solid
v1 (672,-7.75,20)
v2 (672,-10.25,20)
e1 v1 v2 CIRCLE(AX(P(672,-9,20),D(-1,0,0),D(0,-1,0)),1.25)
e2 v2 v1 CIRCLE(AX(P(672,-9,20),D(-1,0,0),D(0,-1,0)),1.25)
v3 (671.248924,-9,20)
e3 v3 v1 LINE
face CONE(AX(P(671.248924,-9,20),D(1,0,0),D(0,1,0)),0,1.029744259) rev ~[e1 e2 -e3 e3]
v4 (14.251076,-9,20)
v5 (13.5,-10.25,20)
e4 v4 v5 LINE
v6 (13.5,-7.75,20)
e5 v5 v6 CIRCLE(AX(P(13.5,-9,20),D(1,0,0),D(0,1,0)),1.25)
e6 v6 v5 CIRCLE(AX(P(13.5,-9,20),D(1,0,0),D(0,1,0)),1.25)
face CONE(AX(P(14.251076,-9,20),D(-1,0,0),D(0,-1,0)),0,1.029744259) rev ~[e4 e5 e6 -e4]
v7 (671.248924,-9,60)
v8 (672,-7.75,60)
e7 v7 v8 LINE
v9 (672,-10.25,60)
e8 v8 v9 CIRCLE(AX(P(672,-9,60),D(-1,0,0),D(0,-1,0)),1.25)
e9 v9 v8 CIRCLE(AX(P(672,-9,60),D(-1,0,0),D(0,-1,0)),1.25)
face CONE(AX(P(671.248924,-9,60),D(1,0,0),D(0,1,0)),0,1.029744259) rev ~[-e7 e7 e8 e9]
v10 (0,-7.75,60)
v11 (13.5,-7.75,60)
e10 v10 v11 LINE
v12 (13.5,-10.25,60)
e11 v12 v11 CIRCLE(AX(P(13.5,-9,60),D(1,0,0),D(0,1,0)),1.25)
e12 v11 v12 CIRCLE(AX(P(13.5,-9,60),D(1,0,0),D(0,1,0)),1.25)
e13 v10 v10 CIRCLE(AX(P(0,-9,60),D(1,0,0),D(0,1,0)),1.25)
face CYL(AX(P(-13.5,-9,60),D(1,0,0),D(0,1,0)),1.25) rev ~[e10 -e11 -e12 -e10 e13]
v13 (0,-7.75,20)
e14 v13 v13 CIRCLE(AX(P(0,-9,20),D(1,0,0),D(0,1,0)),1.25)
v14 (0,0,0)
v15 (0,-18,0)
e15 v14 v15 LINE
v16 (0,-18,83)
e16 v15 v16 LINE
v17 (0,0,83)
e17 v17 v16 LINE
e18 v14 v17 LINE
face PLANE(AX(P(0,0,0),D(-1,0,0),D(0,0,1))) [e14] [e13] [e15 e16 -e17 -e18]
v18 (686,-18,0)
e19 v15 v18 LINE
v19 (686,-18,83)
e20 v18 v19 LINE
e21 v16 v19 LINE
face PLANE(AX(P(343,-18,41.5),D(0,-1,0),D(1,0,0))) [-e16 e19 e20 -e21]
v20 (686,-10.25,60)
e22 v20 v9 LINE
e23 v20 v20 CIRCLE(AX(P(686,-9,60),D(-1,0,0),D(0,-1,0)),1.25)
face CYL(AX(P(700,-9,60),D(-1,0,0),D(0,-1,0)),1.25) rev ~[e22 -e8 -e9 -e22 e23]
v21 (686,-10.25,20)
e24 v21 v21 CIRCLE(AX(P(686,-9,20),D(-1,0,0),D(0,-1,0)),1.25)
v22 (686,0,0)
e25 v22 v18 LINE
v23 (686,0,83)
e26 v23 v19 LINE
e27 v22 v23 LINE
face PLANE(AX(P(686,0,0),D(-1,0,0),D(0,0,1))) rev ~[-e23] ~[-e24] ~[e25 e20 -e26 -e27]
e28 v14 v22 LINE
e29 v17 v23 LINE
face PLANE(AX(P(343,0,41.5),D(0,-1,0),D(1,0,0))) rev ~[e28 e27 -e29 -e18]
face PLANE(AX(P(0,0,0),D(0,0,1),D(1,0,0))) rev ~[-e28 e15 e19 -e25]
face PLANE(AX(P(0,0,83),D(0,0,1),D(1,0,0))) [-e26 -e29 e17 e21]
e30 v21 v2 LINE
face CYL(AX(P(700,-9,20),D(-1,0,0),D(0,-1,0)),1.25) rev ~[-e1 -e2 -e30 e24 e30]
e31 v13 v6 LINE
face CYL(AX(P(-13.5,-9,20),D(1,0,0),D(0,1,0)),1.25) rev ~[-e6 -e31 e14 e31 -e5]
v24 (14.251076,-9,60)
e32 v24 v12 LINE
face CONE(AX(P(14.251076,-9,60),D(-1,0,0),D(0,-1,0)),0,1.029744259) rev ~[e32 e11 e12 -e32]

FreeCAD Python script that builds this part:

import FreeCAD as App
import Part
import Sketcher
from FreeCAD import Vector


def add_polygon(sketch, points):
    """Adds a closed chain of lines whose ends are joined by coincident constraints."""
    first, n = sketch.GeometryCount, len(points)
    for a, b in zip(points, points[1:] + points[:1]):
        sketch.addGeometry(Part.LineSegment(App.Vector(*a, 0), App.Vector(*b, 0)), False)
    for i in range(n):
        sketch.addConstraint(Sketcher.Constraint("Coincident", first + i, 2, first + (i + 1) % n, 1))

doc = App.newDocument("Part")
body = doc.addObject("PartDesign::Body", "Body")

# Sketch on XZ plane
sketch1 = body.newObject("Sketcher::SketchObject", "Sketch")
sketch1.AttachmentSupport = (doc.getObject("XZ_Plane"), [""])
sketch1.MapMode = "FlatFace"
add_polygon(sketch1, [(0, 83), (0, 0), (686, 0), (686, 83)])  # lines 0-3
sketch1.addConstraint([
    Sketcher.Constraint("Vertical", 0),
    Sketcher.Constraint("Horizontal", 1),
    Sketcher.Constraint("Vertical", 2),
    Sketcher.Constraint("Horizontal", 3),
    Sketcher.Constraint("Coincident", 0, 2, -1, 1),
    Sketcher.Constraint("DistanceX", 1, 1, 1, 2, 686.0),
    Sketcher.Constraint("DistanceY", 0, 2, 0, 1, 83.0),
])
pad1 = body.newObject("PartDesign::Pad", "Pad")
pad1.Profile = sketch1
pad1.Length = 18

# Sketch on YZ plane
sketch2 = body.newObject("Sketcher::SketchObject", "Sketch001")
sketch2.AttachmentSupport = (doc.getObject("YZ_Plane"), [""])
sketch2.MapMode = "FlatFace"
sketch2.addGeometry([
    Part.Circle(Vector(-9, 20, 0), Vector(0, 0, 1), 1.2),
    Part.Circle(Vector(-9, 60, 0), Vector(0, 0, 1), 1.2),
], False)
sketch2.addConstraint([
    Sketcher.Constraint("Equal", 0, 1),
    Sketcher.Constraint("Vertical", 0, 3, 1, 3),
    Sketcher.Constraint("Diameter", 0, 2.5),
    Sketcher.Constraint("DistanceX", 0, 3, -1, 1, 9.0),
    Sketcher.Constraint("DistanceY", -1, 1, 0, 3, 20.0),
    Sketcher.Constraint("DistanceY", -1, 1, 1, 3, 60.0),
])
doc.recompute()
hole = body.newObject("PartDesign::Hole", "Hole")
hole.Profile = sketch2
hole.ThreadType = "None"
hole.Diameter = 2.5
hole.DepthType = "Dimension"
hole.Depth = 13.5
hole.DrillPoint = "Angled"
hole.DrillPointAngle = 118
hole.Reversed = True

# Sketch on YZ plane
sketch3 = body.newObject("Sketcher::SketchObject", "Sketch002")
sketch3.AttachmentSupport = (doc.getObject("YZ_Plane"), [""])
sketch3.MapMode = "FlatFace"
sketch3.AttachmentOffset = App.Placement(Vector(0, 0, 686), App.Rotation())
sketch3.addGeometry([
    Part.Circle(Vector(-9, 20, 0), Vector(0, 0, 1), 1.2),
    Part.Circle(Vector(-9, 60, 0), Vector(0, 0, 1), 1.2),
], False)
sketch3.addConstraint([
    Sketcher.Constraint("Equal", 0, 1),
    Sketcher.Constraint("Vertical", 0, 3, 1, 3),
    Sketcher.Constraint("Diameter", 0, 2.5),
    Sketcher.Constraint("DistanceX", 0, 3, -1, 1, 9.0),
    Sketcher.Constraint("DistanceY", -1, 1, 0, 3, 20.0),
    Sketcher.Constraint("DistanceY", -1, 1, 1, 3, 60.0),
])
doc.recompute()
hole2 = body.newObject("PartDesign::Hole", "Hole001")
hole2.Profile = sketch3
hole2.ThreadType = "None"
hole2.Diameter = 2.5
hole2.DepthType = "Dimension"
hole2.Depth = 14
hole2.DrillPoint = "Angled"
hole2.DrillPointAngle = 118

doc.recompute()
